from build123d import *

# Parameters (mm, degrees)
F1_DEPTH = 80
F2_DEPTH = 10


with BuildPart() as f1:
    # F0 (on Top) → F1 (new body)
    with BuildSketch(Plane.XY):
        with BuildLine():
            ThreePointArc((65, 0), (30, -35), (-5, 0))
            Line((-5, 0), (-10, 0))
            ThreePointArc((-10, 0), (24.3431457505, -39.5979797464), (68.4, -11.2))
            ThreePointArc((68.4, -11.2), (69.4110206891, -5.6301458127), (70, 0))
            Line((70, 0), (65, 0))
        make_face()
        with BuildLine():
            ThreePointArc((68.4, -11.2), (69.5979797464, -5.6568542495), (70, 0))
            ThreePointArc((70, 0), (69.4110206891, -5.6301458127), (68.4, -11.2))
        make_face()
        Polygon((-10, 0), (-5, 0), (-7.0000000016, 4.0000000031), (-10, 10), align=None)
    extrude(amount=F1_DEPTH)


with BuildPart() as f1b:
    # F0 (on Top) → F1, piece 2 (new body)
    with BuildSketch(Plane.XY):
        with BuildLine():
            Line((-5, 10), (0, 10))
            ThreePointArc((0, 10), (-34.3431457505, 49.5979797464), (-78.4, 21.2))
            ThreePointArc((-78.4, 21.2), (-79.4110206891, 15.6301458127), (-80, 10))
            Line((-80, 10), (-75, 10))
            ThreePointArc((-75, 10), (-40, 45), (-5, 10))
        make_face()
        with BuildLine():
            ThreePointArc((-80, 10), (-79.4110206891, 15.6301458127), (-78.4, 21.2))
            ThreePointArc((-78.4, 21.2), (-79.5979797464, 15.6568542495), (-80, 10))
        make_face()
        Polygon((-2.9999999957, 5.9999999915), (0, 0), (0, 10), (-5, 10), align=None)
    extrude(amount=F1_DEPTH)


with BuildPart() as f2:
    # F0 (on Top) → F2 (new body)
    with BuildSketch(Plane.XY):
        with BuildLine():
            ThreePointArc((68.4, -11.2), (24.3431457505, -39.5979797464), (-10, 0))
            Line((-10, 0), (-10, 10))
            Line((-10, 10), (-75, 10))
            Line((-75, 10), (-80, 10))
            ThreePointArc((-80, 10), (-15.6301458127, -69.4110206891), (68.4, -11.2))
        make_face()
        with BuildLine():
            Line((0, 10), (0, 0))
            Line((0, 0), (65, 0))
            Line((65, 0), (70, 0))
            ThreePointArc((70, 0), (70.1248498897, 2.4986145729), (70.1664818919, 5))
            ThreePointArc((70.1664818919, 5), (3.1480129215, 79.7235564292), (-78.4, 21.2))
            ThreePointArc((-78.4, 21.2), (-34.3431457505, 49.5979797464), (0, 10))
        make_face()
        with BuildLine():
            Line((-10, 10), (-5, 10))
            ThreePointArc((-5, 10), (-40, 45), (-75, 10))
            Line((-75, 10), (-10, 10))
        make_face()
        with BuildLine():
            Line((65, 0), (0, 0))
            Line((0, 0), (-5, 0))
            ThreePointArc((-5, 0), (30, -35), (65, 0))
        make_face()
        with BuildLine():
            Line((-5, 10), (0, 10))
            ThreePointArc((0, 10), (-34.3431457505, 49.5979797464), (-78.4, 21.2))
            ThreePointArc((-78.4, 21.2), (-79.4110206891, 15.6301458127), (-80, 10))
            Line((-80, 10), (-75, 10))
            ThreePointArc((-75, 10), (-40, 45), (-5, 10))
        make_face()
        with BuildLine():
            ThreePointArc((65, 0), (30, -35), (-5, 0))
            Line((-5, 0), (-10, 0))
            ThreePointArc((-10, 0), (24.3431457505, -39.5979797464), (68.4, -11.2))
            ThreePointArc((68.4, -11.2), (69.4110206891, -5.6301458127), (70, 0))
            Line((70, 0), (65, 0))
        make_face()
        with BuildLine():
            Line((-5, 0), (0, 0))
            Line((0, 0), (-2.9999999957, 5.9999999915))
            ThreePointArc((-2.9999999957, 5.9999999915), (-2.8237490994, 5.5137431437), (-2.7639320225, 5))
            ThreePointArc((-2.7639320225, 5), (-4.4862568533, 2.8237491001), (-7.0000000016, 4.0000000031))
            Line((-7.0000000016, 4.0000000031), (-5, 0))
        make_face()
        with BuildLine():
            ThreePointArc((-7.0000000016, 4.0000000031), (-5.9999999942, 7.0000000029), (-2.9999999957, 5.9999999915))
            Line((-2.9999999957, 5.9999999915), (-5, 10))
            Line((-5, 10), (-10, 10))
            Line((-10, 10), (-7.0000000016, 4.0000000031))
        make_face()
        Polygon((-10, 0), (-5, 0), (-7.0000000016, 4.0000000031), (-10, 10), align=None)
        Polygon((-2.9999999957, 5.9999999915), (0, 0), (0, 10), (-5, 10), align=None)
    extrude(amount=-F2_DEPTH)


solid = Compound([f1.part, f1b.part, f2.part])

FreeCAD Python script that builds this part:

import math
import FreeCAD as App
import Part
import Sketcher
from FreeCAD import Vector

doc = App.newDocument("Part")
body = doc.addObject("PartDesign::Body", "Body")

sketch1 = body.newObject("Sketcher::SketchObject", "Sketch")
sketch1.AttachmentSupport = (doc.getObject("XY_Plane"), [""])
sketch1.MapMode = "FlatFace"
sketch1.addGeometry(Part.LineSegment(Vector(70, 0, 0), Vector(65, 0, 0)), False)
sketch1.addGeometry(Part.ArcOfCircle(Part.Circle(Vector(30, 0, 0), Vector(0, 0, 1), 35), math.radians(180), math.radians(360)), False)
sketch1.addGeometry(Part.LineSegment(Vector(-5, 0, 0), Vector(-7, 4, 0)), False)
sketch1.addGeometry(Part.LineSegment(Vector(-7, 4, 0), Vector(-10, 10, 0)), False)
sketch1.addGeometry(Part.LineSegment(Vector(-10, 10, 0), Vector(-10, 0, 0)), False)
sketch1.addGeometry(Part.ArcOfCircle(Part.Circle(Vector(30, 0, 0), Vector(0, 0, 1), 40), math.radians(180), math.radians(344)), False)
sketch1.addGeometry(Part.ArcOfCircle(Part.Circle(Vector(30, 0, 0), Vector(0, 0, 1), 40), math.radians(-16.26), math.radians(0)), False)
sketch1.addConstraint(Sketcher.Constraint("Coincident", 0, 2, 1, 2))
sketch1.addConstraint(Sketcher.Constraint("Coincident", 1, 1, 2, 1))
sketch1.addConstraint(Sketcher.Constraint("Coincident", 2, 2, 3, 1))
sketch1.addConstraint(Sketcher.Constraint("Coincident", 3, 2, 4, 1))
sketch1.addConstraint(Sketcher.Constraint("Tangent", 4, 2, 5, 1))
sketch1.addConstraint(Sketcher.Constraint("Tangent", 5, 2, 6, 1))
sketch1.addConstraint(Sketcher.Constraint("Coincident", 6, 2, 0, 1))
sketch1.addConstraint(Sketcher.Constraint("Horizontal", 0))
sketch1.addConstraint(Sketcher.Constraint("Vertical", 4))
sketch1.addConstraint(Sketcher.Constraint("Coincident", 5, 3, 1, 3))
sketch1.addConstraint(Sketcher.Constraint("Equal", 5, 6))
sketch1.addConstraint(Sketcher.Constraint("PointOnObject", 1, 3, -1))
sketch1.addConstraint(Sketcher.Constraint("PointOnObject", 0, 2, -1))
sketch1.addConstraint(Sketcher.Constraint("PointOnObject", 1, 1, -1))
sketch1.addConstraint(Sketcher.Constraint("Parallel", 2, 3))
sketch1.addConstraint(Sketcher.Constraint("Radius", 1, 35.0))
sketch1.addConstraint(Sketcher.Constraint("Radius", 5, 40.0))
sketch1.addConstraint(Sketcher.Constraint("DistanceY", 4, 2, 4, 1, 10.0))
sketch1.addConstraint(Sketcher.Constraint("DistanceX", -1, 1, 1, 3, 30.0))
sketch1.addConstraint(Sketcher.Constraint("DistanceX", 2, 2, -1, 1, 7.0))
sketch1.addConstraint(Sketcher.Constraint("DistanceX", -1, 1, 5, 2, 68.4))
pad1 = body.newObject("PartDesign::Pad", "Pad")
pad1.Profile = sketch1
pad1.Length = 80
body2 = doc.addObject("PartDesign::Body", "Body001")

sketch2 = body2.newObject("Sketcher::SketchObject", "Sketch001")
sketch2.AttachmentSupport = (doc.getObject("XY_Plane001"), [""])
sketch2.MapMode = "FlatFace"
sketch2.addGeometry(Part.ArcOfCircle(Part.Circle(Vector(-40, 10, 0), Vector(0, 0, 1), 35), math.radians(0), math.radians(180)), False)
sketch2.addGeometry(Part.LineSegment(Vector(-5, 10, 0), Vector(-3, 6, 0)), False)
sketch2.addGeometry(Part.LineSegment(Vector(-3, 6, 0), Vector(0, 0, 0)), False)
sketch2.addGeometry(Part.LineSegment(Vector(0, 0, 0), Vector(0, 10, 0)), False)
sketch2.addGeometry(Part.ArcOfCircle(Part.Circle(Vector(-40, 10, 0), Vector(0, 0, 1), 40), math.radians(0), math.radians(164)), False)
sketch2.addGeometry(Part.ArcOfCircle(Part.Circle(Vector(-40, 10, 0), Vector(0, 0, 1), 40), math.radians(163.74), math.radians(180)), False)
sketch2.addGeometry(Part.LineSegment(Vector(-80, 10, 0), Vector(-75, 10, 0)), False)
sketch2.addConstraint(Sketcher.Constraint("Coincident", 0, 1, 1, 1))
sketch2.addConstraint(Sketcher.Constraint("Coincident", 1, 2, 2, 1))
sketch2.addConstraint(Sketcher.Constraint("Coincident", 2, 2, 3, 1))
sketch2.addConstraint(Sketcher.Constraint("Tangent", 3, 2, 4, 1))
sketch2.addConstraint(Sketcher.Constraint("Tangent", 4, 2, 5, 1))
sketch2.addConstraint(Sketcher.Constraint("Coincident", 5, 2, 6, 1))
sketch2.addConstraint(Sketcher.Constraint("Coincident", 6, 2, 0, 2))
sketch2.addConstraint(Sketcher.Constraint("Vertical", 3))
sketch2.addConstraint(Sketcher.Constraint("Horizontal", 6))
sketch2.addConstraint(Sketcher.Constraint("Coincident", 2, 2, -1, 1))
sketch2.addConstraint(Sketcher.Constraint("Coincident", 4, 3, 0, 3))
sketch2.addConstraint(Sketcher.Constraint("Equal", 4, 5))
sketch2.addConstraint(Sketcher.Constraint("Parallel", 1, 2))
sketch2.addConstraint(Sketcher.Constraint("Horizontal", 5, 3, 0, 1))
sketch2.addConstraint(Sketcher.Constraint("Horizontal", 3, 2, 5, 2))
sketch2.addConstraint(Sketcher.Constraint("Radius", 0, 35.0))
sketch2.addConstraint(Sketcher.Constraint("Radius", 4, 40.0))
sketch2.addConstraint(Sketcher.Constraint("DistanceY", 3, 1, 3, 2, 10.0))
sketch2.addConstraint(Sketcher.Constraint("DistanceX", 1, 2, -1, 1, 3.0))
sketch2.addConstraint(Sketcher.Constraint("DistanceX", 4, 2, -1, 1, 78.4))
pad2 = body2.newObject("PartDesign::Pad", "Pad001")
pad2.Profile = sketch2
pad2.Length = 80
body3 = doc.addObject("PartDesign::Body", "Body002")

sketch3 = body3.newObject("Sketcher::SketchObject", "Sketch002")
sketch3.AttachmentSupport = (doc.getObject("XY_Plane002"), [""])
sketch3.MapMode = "FlatFace"
sketch3.addGeometry(Part.ArcOfCircle(Part.Circle(Vector(-5, 5, 0), Vector(0, 0, 1), 75.2), math.radians(-3.81), math.radians(0)), False)
sketch3.addGeometry(Part.ArcOfCircle(Part.Circle(Vector(-5, 5, 0), Vector(0, 0, 1), 75.2), math.radians(0), math.radians(168)), False)
sketch3.addGeometry(Part.ArcOfCircle(Part.Circle(Vector(-5, 5, 0), Vector(0, 0, 1), 75.2), math.radians(167.55), math.radians(176.19)), False)
sketch3.addGeometry(Part.ArcOfCircle(Part.Circle(Vector(-5, 5, 0), Vector(0, 0, 1), 75.2), math.radians(176), math.radians(348)), False)
sketch3.addGeometry(Part.ArcOfCircle(Part.Circle(Vector(-5, 5, 0), Vector(0, 0, 1), 75.2), math.radians(-12.45), math.radians(-3.81)), False)
sketch3.addGeometry(Part.ArcOfCircle(Part.Circle(Vector(-5, 5, 0), Vector(0, 0, 1), 2.2), math.radians(27), math.radians(207)), False)
sketch3.addGeometry(Part.ArcOfCircle(Part.Circle(Vector(-5, 5, 0), Vector(0, 0, 1), 2.2), math.radians(0), math.radians(27)), False)
sketch3.addGeometry(Part.ArcOfCircle(Part.Circle(Vector(-5, 5, 0), Vector(0, 0, 1), 2.2), math.radians(-153), math.radians(0)), False)
sketch3.addConstraint(Sketcher.Constraint("Tangent", 0, 2, 1, 1))
sketch3.addConstraint(Sketcher.Constraint("Tangent", 1, 2, 2, 1))
sketch3.addConstraint(Sketcher.Constraint("Tangent", 2, 2, 3, 1))
sketch3.addConstraint(Sketcher.Constraint("Tangent", 3, 2, 4, 1))
sketch3.addConstraint(Sketcher.Constraint("Coincident", 4, 2, 0, 1))
sketch3.addConstraint(Sketcher.Constraint("Tangent", 5, 1, 6, 2))
sketch3.addConstraint(Sketcher.Constraint("Tangent", 6, 1, 7, 2))
sketch3.addConstraint(Sketcher.Constraint("Tangent", 7, 1, 5, 2))
sketch3.addConstraint(Sketcher.Constraint("Coincident", 2, 3, 0, 3))
sketch3.addConstraint(Sketcher.Constraint("Coincident", 5, 3, 0, 3))
sketch3.addConstraint(Sketcher.Constraint("Equal", 2, 3))
sketch3.addConstraint(Sketcher.Constraint("PointOnObject", 4, 2, -1))
sketch3.addConstraint(Sketcher.Constraint("Horizontal", 7, 3, 0, 2))
sketch3.addConstraint(Sketcher.Constraint("Horizontal", 0, 2, 6, 1))
sketch3.addConstraint(Sketcher.Constraint("DistanceX", 0, 3, -1, 1, 5.0))
sketch3.addConstraint(Sketcher.Constraint("DistanceY", -1, 1, 0, 3, 5.0))
sketch3.addConstraint(Sketcher.Constraint("DistanceX", 2, 2, -1, 1, 80.0))
sketch3.addConstraint(Sketcher.Constraint("DistanceY", -1, 1, 2, 2, 10.0))
sketch3.addConstraint(Sketcher.Constraint("DistanceX", 5, 1, -1, 1, 3.0))
sketch3.addConstraint(Sketcher.Constraint("DistanceY", -1, 1, 5, 1, 6.0))
sketch3.addConstraint(Sketcher.Constraint("DistanceX", 7, 1, -1, 1, 7.0))
sketch3.addConstraint(Sketcher.Constraint("DistanceX", 1, 2, -1, 1, 78.4))
sketch3.addConstraint(Sketcher.Constraint("DistanceX", -1, 1, 3, 2, 68.4))
pad3 = body3.newObject("PartDesign::Pad", "Pad002")
pad3.Profile = sketch3
pad3.Length = 10
pad3.Reversed = True

doc.recompute()
